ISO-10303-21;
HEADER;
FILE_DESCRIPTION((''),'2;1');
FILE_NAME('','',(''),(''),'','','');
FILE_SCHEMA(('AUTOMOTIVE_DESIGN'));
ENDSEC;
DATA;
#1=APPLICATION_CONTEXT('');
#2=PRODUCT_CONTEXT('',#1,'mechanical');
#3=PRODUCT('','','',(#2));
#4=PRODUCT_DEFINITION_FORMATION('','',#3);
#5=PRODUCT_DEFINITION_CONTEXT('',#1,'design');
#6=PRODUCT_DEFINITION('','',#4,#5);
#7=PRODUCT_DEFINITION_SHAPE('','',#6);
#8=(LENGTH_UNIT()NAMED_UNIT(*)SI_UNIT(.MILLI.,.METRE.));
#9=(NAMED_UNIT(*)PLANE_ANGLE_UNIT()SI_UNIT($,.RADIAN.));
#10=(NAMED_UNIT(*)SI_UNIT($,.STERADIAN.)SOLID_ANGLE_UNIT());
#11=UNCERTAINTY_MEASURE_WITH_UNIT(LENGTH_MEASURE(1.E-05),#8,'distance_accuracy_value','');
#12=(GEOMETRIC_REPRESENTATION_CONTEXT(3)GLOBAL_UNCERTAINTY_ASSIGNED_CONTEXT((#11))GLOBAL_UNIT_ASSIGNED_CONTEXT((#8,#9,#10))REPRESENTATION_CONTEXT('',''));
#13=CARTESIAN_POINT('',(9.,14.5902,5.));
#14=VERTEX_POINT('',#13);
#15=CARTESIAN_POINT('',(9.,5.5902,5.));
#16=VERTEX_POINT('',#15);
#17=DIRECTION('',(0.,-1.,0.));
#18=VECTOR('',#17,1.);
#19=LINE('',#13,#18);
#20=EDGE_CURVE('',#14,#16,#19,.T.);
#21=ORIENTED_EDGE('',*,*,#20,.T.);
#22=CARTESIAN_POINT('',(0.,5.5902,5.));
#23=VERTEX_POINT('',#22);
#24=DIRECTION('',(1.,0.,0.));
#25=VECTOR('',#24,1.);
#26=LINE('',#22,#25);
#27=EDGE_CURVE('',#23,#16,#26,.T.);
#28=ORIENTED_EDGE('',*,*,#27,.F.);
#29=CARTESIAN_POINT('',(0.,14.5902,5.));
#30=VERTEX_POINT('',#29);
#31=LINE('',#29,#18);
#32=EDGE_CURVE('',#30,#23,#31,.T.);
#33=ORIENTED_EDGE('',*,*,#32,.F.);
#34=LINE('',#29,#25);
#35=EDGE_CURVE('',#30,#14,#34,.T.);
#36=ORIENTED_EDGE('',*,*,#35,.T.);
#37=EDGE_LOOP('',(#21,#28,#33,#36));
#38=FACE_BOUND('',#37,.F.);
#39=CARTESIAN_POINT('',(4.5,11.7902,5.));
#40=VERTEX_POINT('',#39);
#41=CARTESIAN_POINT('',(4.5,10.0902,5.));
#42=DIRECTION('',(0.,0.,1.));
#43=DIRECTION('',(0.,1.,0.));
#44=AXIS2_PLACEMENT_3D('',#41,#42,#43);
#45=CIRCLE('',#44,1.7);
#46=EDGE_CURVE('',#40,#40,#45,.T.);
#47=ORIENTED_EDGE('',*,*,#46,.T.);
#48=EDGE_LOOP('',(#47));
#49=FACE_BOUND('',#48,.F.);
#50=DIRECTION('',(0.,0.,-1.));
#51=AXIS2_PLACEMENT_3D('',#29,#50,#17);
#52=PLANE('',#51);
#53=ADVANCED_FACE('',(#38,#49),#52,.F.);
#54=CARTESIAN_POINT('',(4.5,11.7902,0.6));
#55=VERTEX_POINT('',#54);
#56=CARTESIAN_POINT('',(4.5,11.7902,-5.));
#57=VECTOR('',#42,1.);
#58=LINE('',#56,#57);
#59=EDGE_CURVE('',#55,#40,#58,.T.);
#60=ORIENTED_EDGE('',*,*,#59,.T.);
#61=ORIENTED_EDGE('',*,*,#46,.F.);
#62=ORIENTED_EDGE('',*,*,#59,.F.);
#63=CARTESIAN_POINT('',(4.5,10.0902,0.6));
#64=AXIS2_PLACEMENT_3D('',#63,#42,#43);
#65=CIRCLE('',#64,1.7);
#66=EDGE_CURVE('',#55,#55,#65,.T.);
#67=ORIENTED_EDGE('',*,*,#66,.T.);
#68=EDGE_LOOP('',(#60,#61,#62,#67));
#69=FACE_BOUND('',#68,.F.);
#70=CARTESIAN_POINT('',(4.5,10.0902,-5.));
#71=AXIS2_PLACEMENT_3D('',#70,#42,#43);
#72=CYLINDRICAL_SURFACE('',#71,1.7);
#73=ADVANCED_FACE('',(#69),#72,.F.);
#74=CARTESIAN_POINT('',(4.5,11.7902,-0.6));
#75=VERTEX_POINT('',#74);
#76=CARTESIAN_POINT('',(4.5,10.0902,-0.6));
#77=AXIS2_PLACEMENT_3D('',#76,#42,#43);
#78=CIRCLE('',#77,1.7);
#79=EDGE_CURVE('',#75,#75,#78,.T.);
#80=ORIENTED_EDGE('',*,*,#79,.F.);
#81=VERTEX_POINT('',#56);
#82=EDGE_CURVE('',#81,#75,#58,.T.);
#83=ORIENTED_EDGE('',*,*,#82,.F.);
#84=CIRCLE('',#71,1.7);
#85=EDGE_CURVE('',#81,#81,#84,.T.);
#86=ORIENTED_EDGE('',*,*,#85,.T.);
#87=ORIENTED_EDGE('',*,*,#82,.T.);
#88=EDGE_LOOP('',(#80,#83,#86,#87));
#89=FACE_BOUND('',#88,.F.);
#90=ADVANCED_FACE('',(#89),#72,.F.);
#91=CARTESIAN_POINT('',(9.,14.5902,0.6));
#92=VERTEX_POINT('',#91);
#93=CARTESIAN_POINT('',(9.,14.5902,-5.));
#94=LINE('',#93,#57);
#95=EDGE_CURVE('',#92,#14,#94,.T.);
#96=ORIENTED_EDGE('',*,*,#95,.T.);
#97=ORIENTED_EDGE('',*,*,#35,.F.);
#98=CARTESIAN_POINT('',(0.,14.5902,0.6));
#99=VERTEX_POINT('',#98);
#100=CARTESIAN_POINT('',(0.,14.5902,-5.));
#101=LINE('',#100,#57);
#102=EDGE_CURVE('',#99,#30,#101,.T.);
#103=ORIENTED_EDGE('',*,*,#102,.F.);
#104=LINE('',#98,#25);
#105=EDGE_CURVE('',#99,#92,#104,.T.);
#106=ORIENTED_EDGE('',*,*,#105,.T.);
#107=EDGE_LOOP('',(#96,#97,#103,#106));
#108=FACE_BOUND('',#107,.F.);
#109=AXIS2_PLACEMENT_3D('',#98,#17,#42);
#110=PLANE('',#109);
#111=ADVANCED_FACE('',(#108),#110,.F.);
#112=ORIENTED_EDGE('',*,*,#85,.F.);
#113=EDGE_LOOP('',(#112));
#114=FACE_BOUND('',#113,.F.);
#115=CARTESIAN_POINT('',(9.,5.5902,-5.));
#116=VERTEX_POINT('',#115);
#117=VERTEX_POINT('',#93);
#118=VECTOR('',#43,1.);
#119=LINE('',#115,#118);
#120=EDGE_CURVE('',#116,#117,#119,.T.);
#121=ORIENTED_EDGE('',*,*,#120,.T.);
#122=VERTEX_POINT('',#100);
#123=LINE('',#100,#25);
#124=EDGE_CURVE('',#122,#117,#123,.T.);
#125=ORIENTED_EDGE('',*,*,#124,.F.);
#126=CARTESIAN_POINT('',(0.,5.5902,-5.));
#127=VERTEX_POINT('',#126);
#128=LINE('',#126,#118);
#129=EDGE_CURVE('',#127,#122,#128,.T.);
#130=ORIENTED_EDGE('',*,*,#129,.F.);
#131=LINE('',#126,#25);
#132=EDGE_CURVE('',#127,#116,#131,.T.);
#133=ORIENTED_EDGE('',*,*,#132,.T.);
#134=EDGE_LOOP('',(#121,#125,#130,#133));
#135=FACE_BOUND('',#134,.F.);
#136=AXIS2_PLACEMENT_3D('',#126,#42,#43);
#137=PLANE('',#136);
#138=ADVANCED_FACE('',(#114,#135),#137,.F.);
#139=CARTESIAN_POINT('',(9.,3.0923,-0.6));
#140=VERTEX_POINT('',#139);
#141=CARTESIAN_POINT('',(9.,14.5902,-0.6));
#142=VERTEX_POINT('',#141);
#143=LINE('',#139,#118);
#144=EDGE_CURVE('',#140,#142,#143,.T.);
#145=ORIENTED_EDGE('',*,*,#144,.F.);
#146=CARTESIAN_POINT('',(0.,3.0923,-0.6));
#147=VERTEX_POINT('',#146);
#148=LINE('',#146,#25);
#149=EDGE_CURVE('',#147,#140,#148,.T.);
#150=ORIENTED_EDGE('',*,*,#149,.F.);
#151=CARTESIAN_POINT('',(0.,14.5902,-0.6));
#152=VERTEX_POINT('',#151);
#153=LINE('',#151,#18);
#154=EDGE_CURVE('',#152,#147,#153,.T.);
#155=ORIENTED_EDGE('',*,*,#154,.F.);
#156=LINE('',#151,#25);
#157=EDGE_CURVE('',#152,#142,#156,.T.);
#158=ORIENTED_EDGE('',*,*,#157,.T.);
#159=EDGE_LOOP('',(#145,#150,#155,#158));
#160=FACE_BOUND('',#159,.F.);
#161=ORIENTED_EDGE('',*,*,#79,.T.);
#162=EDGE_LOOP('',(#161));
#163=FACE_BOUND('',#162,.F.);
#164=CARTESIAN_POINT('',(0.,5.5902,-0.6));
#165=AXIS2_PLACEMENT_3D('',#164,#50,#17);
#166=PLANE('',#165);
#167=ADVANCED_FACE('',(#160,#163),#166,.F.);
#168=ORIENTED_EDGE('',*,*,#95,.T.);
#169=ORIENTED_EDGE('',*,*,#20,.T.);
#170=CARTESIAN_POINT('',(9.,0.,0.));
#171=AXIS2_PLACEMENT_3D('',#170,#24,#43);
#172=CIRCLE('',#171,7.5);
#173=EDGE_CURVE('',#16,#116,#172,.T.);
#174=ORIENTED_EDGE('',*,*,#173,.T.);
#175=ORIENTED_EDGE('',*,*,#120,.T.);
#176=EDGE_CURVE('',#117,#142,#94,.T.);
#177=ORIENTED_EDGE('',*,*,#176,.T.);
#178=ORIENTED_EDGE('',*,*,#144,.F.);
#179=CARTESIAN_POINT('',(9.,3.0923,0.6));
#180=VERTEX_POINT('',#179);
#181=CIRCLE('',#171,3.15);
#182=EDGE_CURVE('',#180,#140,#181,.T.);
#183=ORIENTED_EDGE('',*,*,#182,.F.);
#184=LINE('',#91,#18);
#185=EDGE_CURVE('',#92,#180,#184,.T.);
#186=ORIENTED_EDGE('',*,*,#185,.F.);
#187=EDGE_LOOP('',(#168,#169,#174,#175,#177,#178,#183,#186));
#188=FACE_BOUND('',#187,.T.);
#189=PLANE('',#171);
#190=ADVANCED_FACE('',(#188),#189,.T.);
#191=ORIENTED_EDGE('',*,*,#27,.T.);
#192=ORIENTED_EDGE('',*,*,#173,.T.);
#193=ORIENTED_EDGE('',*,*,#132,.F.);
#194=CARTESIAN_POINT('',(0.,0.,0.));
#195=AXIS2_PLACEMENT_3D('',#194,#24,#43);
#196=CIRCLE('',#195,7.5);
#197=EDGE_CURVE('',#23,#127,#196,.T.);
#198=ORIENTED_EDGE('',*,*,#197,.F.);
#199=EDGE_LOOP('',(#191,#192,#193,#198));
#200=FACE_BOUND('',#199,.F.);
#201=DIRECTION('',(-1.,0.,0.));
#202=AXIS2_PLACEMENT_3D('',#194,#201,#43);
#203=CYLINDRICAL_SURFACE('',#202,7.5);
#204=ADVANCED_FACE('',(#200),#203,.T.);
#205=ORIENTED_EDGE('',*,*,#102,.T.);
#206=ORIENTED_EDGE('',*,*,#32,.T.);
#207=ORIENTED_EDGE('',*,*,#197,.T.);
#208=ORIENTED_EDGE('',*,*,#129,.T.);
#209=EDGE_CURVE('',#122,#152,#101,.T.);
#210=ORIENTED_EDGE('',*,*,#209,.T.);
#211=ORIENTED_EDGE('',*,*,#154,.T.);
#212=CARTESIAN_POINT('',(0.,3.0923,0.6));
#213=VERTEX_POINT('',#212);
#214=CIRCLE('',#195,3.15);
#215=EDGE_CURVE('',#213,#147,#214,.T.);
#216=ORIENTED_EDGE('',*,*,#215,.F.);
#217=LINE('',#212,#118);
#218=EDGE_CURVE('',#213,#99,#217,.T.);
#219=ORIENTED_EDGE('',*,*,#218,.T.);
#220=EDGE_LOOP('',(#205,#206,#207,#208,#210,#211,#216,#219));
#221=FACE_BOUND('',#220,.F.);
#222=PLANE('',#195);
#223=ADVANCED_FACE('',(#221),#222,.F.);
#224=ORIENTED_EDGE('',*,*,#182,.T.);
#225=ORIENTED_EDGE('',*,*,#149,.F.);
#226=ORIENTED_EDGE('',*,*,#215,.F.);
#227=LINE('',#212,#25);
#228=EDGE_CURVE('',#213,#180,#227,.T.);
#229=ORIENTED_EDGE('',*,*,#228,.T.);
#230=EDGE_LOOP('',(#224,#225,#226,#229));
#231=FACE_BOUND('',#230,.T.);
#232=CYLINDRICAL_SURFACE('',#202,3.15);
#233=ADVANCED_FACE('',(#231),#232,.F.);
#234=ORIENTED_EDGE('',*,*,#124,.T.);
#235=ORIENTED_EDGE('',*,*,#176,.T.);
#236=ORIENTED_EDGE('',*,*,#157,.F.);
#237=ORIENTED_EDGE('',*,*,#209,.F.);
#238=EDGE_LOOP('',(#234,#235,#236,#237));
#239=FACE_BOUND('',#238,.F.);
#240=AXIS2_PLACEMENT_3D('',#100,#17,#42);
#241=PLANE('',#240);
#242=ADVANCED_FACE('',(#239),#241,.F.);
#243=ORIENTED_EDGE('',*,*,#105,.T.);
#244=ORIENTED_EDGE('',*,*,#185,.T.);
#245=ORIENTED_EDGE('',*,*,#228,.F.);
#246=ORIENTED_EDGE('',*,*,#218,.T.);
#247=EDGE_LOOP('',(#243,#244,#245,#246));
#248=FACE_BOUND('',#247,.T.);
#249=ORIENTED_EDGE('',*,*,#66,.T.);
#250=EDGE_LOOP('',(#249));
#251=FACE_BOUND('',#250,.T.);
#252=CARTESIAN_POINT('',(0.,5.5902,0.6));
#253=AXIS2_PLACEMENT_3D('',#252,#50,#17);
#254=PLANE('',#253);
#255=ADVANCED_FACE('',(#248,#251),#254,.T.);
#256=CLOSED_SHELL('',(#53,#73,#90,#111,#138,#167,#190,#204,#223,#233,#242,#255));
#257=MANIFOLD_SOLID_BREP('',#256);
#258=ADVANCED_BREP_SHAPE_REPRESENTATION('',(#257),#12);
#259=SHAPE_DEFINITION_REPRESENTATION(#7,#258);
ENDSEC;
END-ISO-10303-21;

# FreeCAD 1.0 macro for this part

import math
import FreeCAD as App
import Part
import Sketcher
from FreeCAD import Vector

doc = App.newDocument("Part")
body = doc.addObject("PartDesign::Body", "Body")

# Sketch on YZ plane
sketch1 = body.newObject("Sketcher::SketchObject", "Sketch")
sketch1.AttachmentSupport = (doc.getObject("YZ_Plane"), [""])
sketch1.MapMode = "FlatFace"
sketch1.addGeometry([
    Part.ArcOfCircle(Part.Circle(Vector(0, 0, 0), Vector(0, 0, 1), 3.1), math.radians(11), math.radians(349)),  # 0
    Part.LineSegment(Vector(3.1, 0.6, 0), Vector(14.6, 0.6, 0)),  # 1
    Part.LineSegment(Vector(14.6, 0.6, 0), Vector(14.6, 5, 0)),  # 2
    Part.LineSegment(Vector(14.6, 5, 0), Vector(5.6, 5, 0)),  # 3
    Part.ArcOfCircle(Part.Circle(Vector(0, 0, 0), Vector(0, 0, 1), 7.5), math.radians(42), math.radians(318)),  # 4
    Part.LineSegment(Vector(5.6, -5, 0), Vector(14.6, -5, 0)),  # 5
    Part.LineSegment(Vector(14.6, -5, 0), Vector(14.6, -0.6, 0)),  # 6
    Part.LineSegment(Vector(14.6, -0.6, 0), Vector(3.1, -0.6, 0)),  # 7
], False)
sketch1.addConstraint([
    Sketcher.Constraint("Coincident", 0, 1, 1, 1),
    Sketcher.Constraint("Coincident", 1, 2, 2, 1),
    Sketcher.Constraint("Coincident", 2, 2, 3, 1),
    Sketcher.Constraint("Coincident", 3, 2, 4, 1),
    Sketcher.Constraint("Coincident", 4, 2, 5, 1),
    Sketcher.Constraint("Coincident", 5, 2, 6, 1),
    Sketcher.Constraint("Coincident", 6, 2, 7, 1),
    Sketcher.Constraint("Coincident", 7, 2, 0, 2),
    Sketcher.Constraint("Horizontal", 1),
    Sketcher.Constraint("Vertical", 2),
    Sketcher.Constraint("Horizontal", 3),
    Sketcher.Constraint("Horizontal", 5),
    Sketcher.Constraint("Vertical", 6),
    Sketcher.Constraint("Horizontal", 7),
    Sketcher.Constraint("Coincident", 0, 3, -1, 1),
    Sketcher.Constraint("Coincident", 4, 3, -1, 1),
    Sketcher.Constraint("Symmetric", 2, 2, 5, 2, -1),
    Sketcher.Constraint("Vertical", 0, 1, 7, 2),
    Sketcher.Constraint("Radius", 4, 7.5),
    Sketcher.Constraint("DistanceX", 3, 2, 3, 1, 9.0),
    Sketcher.Constraint("Radius", 0, 3.15),
    Sketcher.Constraint("DistanceY", 4, 2, 3, 2, 10.0),
    Sketcher.Constraint("DistanceY", 6, 2, 1, 2, 1.2),
])
pad1 = body.newObject("PartDesign::Pad", "Pad")
pad1.Profile = sketch1
pad1.Length = 9

# Sketch on XY plane
sketch2 = body.newObject("Sketcher::SketchObject", "Sketch001")
sketch2.AttachmentSupport = (doc.getObject("XY_Plane"), [""])
sketch2.MapMode = "FlatFace"
sketch2.AttachmentOffset = App.Placement(Vector(0, 0, -5), App.Rotation())
sketch2.addGeometry(Part.Circle(Vector(4.5, 10.1, 0), Vector(0, 0, 1), 1.7), False)
sketch2.addConstraint([
    Sketcher.Constraint("Diameter", 0, 3.4),
    Sketcher.Constraint("DistanceX", -1, 1, 0, 3, 4.5),
    Sketcher.Constraint("DistanceY", -1, 1, 0, 3, 10.0902),
])
doc.recompute()
hole = body.newObject("PartDesign::Hole", "Hole")
hole.Profile = sketch2
hole.ThreadType = "None"
hole.Diameter = 3.4
hole.DepthType = "ThroughAll"
hole.Reversed = True

doc.recompute()
